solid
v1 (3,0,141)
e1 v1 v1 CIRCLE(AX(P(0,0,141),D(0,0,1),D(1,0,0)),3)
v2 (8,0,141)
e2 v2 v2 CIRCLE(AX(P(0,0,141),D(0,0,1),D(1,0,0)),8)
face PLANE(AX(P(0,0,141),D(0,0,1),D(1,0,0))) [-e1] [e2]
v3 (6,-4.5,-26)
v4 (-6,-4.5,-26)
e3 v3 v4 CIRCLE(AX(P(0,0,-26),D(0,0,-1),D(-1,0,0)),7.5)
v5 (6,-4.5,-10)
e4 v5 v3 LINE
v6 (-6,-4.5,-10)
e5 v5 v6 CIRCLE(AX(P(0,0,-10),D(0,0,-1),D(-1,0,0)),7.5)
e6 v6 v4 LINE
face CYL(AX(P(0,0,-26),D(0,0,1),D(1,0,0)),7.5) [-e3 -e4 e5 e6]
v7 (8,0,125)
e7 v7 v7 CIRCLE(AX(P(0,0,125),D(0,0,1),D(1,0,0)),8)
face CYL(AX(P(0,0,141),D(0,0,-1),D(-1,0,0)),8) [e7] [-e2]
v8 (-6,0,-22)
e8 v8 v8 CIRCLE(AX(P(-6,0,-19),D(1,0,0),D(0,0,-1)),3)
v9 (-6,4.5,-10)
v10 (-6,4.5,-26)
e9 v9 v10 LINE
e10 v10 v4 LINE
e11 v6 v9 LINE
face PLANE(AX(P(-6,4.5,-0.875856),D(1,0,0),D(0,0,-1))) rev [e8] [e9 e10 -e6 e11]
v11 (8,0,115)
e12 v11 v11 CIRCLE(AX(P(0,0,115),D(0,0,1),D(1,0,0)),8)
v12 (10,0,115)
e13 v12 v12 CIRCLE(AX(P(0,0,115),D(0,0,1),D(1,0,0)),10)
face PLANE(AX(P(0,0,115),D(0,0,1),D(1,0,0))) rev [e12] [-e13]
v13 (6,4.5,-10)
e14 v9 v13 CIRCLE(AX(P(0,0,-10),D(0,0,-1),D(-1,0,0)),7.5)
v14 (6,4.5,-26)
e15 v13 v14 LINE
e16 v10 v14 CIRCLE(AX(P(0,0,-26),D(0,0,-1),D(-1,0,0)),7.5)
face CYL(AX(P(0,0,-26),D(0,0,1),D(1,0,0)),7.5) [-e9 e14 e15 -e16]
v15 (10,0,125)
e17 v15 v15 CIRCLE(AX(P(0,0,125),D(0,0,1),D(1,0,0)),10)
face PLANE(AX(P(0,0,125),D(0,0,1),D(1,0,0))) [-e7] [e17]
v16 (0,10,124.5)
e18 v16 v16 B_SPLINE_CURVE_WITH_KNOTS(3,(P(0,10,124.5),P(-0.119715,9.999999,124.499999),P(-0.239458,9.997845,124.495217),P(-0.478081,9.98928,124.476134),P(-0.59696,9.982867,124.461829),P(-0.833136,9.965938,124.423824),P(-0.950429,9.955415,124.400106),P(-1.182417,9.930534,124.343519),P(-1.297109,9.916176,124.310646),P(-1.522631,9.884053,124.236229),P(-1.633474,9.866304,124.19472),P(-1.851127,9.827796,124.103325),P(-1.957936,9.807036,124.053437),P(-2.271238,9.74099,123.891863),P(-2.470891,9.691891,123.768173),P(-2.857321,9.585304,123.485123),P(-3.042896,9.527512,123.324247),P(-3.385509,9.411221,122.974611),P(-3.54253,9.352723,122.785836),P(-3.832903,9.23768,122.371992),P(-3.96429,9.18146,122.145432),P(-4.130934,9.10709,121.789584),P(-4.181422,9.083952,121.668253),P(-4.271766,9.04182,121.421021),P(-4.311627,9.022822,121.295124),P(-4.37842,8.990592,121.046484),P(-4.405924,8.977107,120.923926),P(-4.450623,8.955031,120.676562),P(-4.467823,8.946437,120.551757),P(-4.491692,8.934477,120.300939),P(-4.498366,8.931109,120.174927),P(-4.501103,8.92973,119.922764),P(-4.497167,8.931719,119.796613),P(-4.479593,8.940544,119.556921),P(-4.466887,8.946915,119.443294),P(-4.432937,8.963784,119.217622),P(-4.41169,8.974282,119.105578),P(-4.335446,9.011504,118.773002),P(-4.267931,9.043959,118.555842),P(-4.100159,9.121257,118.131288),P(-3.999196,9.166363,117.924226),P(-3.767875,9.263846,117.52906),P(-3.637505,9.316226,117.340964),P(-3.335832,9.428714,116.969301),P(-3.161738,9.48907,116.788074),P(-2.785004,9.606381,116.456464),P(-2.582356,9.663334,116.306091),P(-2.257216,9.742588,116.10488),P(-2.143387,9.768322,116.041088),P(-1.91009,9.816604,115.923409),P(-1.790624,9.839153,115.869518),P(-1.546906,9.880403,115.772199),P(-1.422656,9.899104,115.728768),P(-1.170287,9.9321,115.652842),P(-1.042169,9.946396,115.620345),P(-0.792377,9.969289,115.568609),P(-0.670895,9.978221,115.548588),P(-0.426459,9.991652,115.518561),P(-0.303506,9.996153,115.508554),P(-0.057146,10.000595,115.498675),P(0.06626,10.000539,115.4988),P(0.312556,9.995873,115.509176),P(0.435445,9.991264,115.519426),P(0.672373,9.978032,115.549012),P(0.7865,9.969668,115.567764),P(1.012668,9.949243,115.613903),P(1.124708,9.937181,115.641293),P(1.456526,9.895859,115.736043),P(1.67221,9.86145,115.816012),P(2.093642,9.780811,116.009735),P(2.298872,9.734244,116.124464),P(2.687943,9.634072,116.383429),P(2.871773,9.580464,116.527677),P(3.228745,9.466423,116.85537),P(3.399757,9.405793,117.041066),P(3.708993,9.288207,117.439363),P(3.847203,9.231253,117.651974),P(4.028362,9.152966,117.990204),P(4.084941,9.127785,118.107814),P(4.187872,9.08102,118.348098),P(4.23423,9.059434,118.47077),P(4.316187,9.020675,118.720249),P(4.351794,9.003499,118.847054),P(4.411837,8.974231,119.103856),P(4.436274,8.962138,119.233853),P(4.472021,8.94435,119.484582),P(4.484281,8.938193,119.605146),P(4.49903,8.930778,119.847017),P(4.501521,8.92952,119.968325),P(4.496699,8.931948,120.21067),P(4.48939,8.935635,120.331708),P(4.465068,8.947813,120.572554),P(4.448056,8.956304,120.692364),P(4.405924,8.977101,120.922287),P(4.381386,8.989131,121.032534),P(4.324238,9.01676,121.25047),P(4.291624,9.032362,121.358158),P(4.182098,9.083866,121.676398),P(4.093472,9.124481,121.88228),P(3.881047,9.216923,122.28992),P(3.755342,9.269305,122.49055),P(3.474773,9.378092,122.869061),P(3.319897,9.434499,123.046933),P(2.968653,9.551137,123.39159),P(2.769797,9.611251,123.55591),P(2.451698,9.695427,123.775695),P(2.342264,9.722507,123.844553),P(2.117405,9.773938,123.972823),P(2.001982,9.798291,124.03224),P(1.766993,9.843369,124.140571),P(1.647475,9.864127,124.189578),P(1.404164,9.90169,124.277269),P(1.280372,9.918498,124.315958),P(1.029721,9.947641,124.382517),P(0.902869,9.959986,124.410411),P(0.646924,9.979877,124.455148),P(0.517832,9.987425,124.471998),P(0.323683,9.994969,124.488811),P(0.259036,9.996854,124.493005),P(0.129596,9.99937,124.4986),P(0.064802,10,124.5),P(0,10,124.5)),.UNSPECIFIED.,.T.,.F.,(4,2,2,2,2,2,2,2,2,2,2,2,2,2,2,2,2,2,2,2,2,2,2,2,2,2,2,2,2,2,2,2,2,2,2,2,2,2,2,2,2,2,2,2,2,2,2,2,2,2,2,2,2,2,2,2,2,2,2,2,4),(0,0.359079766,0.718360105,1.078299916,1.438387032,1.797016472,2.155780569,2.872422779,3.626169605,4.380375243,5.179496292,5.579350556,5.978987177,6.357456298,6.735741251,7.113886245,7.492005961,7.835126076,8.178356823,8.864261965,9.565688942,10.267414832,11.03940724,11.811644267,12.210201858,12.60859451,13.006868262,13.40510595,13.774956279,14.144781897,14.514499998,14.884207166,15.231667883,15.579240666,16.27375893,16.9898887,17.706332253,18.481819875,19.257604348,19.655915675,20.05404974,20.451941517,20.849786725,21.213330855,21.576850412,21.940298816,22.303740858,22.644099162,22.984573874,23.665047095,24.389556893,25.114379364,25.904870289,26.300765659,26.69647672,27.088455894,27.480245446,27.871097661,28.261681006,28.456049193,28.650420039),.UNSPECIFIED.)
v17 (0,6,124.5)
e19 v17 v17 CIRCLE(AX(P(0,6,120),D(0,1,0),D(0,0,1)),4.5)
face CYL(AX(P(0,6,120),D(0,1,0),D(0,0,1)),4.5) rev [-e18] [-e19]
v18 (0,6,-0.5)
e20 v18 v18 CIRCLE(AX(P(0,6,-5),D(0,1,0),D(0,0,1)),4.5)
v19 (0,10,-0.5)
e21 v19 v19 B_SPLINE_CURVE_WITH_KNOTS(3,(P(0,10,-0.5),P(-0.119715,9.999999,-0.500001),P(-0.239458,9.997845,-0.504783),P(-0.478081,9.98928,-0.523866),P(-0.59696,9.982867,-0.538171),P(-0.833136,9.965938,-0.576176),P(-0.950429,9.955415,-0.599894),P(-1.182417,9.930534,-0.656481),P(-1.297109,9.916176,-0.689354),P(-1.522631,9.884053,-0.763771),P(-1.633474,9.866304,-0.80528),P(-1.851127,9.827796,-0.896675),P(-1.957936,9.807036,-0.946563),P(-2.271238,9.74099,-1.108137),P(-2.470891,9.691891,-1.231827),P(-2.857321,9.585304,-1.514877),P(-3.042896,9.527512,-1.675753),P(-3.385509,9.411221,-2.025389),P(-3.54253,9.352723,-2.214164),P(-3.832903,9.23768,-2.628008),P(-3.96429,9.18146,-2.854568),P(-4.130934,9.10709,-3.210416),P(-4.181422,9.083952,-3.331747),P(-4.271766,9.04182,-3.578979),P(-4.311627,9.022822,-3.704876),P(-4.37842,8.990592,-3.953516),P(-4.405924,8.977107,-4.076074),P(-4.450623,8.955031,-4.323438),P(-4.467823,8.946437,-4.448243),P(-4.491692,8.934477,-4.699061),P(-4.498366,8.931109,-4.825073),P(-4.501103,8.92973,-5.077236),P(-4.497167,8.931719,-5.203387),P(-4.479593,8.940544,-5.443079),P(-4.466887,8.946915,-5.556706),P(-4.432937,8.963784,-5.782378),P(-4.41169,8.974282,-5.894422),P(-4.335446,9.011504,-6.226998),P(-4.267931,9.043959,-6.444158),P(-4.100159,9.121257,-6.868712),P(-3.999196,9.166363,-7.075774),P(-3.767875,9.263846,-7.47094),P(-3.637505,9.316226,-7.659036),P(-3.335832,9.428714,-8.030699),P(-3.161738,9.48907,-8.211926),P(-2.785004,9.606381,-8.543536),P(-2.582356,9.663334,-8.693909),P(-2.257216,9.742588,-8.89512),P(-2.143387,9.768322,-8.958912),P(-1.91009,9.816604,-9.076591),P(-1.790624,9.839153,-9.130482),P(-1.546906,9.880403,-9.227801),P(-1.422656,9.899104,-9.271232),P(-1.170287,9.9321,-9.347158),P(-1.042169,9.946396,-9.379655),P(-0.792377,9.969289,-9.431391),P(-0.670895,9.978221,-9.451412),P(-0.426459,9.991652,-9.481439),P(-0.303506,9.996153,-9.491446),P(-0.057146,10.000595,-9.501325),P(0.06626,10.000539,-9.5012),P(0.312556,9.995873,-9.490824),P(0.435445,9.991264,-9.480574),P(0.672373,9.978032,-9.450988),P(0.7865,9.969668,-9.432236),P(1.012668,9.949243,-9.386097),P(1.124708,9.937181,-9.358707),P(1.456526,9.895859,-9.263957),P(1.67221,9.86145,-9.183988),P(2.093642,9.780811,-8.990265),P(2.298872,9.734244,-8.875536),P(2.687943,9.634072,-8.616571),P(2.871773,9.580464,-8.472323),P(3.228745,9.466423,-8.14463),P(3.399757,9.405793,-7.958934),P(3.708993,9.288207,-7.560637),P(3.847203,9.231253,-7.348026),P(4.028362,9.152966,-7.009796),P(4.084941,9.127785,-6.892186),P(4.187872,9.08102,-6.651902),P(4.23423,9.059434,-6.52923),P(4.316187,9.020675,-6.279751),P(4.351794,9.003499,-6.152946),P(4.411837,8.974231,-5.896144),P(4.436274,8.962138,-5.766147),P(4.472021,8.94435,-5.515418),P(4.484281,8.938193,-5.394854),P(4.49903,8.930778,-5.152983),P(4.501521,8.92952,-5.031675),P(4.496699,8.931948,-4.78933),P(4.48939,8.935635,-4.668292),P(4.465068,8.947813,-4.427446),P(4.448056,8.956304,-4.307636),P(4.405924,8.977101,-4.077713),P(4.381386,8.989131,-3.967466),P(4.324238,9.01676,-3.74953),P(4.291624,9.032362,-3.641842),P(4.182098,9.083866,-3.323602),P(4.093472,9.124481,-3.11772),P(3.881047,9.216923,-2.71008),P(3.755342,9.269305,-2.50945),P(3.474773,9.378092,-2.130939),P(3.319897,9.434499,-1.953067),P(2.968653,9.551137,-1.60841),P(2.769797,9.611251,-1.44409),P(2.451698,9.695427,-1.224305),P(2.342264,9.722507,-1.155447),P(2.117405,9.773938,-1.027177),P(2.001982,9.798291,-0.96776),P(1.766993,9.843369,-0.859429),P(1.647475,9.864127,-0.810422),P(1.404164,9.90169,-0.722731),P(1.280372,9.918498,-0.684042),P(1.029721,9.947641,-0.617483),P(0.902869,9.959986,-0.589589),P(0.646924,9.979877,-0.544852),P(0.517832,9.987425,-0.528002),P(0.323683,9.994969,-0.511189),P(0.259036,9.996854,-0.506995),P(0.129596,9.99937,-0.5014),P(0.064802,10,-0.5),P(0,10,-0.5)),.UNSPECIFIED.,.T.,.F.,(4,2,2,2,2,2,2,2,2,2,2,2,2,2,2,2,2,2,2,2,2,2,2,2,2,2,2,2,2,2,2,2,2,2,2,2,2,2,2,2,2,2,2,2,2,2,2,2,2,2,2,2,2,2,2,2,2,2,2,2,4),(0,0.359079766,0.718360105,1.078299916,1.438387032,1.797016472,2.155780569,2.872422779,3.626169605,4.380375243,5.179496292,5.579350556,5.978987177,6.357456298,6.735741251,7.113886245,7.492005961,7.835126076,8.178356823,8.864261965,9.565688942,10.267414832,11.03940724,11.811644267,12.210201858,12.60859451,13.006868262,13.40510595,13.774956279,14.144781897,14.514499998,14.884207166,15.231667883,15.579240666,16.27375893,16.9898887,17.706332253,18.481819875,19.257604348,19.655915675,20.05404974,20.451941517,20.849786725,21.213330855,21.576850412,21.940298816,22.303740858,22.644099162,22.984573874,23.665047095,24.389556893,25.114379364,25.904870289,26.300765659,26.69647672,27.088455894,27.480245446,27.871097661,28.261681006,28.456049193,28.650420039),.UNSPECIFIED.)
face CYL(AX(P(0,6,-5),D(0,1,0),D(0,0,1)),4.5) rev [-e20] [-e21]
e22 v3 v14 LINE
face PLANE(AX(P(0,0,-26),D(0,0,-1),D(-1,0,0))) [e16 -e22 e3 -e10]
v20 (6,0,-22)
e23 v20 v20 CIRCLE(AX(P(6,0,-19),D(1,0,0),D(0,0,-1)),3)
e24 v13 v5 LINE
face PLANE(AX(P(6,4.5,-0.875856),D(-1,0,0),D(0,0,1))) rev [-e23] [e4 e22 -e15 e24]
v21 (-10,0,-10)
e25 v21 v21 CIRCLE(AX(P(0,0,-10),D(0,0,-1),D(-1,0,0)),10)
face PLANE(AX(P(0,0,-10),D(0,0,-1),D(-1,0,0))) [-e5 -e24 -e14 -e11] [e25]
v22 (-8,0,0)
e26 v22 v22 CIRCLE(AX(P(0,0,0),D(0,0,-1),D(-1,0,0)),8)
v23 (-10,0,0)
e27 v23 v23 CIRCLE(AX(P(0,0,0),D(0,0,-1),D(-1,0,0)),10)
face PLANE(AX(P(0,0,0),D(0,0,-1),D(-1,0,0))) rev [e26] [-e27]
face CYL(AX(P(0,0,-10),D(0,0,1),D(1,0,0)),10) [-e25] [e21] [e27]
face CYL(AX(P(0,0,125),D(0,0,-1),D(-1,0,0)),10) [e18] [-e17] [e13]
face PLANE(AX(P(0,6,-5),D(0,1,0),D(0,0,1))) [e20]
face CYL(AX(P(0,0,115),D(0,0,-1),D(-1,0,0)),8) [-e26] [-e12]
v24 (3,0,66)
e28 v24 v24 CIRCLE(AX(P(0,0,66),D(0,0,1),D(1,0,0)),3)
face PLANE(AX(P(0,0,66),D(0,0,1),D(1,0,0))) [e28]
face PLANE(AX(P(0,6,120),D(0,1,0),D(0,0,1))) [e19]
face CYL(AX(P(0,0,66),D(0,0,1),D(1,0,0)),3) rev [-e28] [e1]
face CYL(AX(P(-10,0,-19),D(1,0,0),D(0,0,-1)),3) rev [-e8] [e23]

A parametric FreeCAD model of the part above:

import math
import FreeCAD as App
import Part
import Sketcher

V = App.Vector

doc = App.newDocument("Part")
body = doc.addObject("PartDesign::Body", "Body")

# Sketch on XY plane
sketch1 = body.newObject("Sketcher::SketchObject", "Sketch")
sketch1.AttachmentSupport = (doc.getObject("XY_Plane"), [""])
sketch1.MapMode = "FlatFace"
sketch1.addGeometry(Part.Circle(V(0, 0, 0), V(0, 0, 1), 8), False)
sketch1.addConstraint(Sketcher.Constraint("Coincident", 0, 3, -1, 1))
sketch1.addConstraint(Sketcher.Constraint("Diameter", 0, 16.0))
pad1 = body.newObject("PartDesign::Pad", "Pad")
pad1.Profile = sketch1
pad1.Length = 115

# Sketch on XY plane
sketch2 = body.newObject("Sketcher::SketchObject", "Sketch001")
sketch2.AttachmentSupport = (doc.getObject("XY_Plane"), [""])
sketch2.MapMode = "FlatFace"
sketch2.addGeometry(Part.Circle(V(0, 0, 0), V(0, 0, 1), 10), False)
sketch2.addConstraint(Sketcher.Constraint("Coincident", 0, 3, -1, 1))
sketch2.addConstraint(Sketcher.Constraint("Diameter", 0, 20.0))
pad2 = body.newObject("PartDesign::Pad", "Pad001")
pad2.Profile = sketch2
pad2.Length = 10
pad2.Reversed = True

# Sketch on XY plane
sketch3 = body.newObject("Sketcher::SketchObject", "Sketch002")
sketch3.AttachmentSupport = (doc.getObject("XY_Plane"), [""])
sketch3.MapMode = "FlatFace"
sketch3.AttachmentOffset = App.Placement(V(0, 0, 125), App.Rotation())
sketch3.addGeometry(Part.Circle(V(0, 0, 0), V(0, 0, 1), 10), False)
sketch3.addConstraint(Sketcher.Constraint("Coincident", 0, 3, -1, 1))
sketch3.addConstraint(Sketcher.Constraint("Diameter", 0, 20.0))
pad3 = body.newObject("PartDesign::Pad", "Pad002")
pad3.Profile = sketch3
pad3.Length = 10
pad3.Reversed = True

# Sketch on XY plane
sketch4 = body.newObject("Sketcher::SketchObject", "Sketch003")
sketch4.AttachmentSupport = (doc.getObject("XY_Plane"), [""])
sketch4.MapMode = "FlatFace"
sketch4.AttachmentOffset = App.Placement(V(0, 0, 125), App.Rotation())
sketch4.addGeometry(Part.Circle(V(0, 0, 0), V(0, 0, 1), 8), False)
sketch4.addConstraint(Sketcher.Constraint("Coincident", 0, 3, -1, 1))
sketch4.addConstraint(Sketcher.Constraint("Diameter", 0, 16.0))
pad4 = body.newObject("PartDesign::Pad", "Pad003")
pad4.Profile = sketch4
pad4.Length = 16

# Sketch on XY plane
sketch5 = body.newObject("Sketcher::SketchObject", "Sketch004")
sketch5.AttachmentSupport = (doc.getObject("XY_Plane"), [""])
sketch5.MapMode = "FlatFace"
sketch5.AttachmentOffset = App.Placement(V(0, 0, -10), App.Rotation())
sketch5.addGeometry(Part.Circle(V(0, 0, 0), V(0, 0, 1), 7.5), False)
sketch5.addConstraint(Sketcher.Constraint("Coincident", 0, 3, -1, 1))
sketch5.addConstraint(Sketcher.Constraint("Diameter", 0, 15.0))
pad5 = body.newObject("PartDesign::Pad", "Pad004")
pad5.Profile = sketch5
pad5.Length = 16
pad5.Reversed = True

# Sketch on XY plane
sketch6 = body.newObject("Sketcher::SketchObject", "Sketch005")
sketch6.AttachmentSupport = (doc.getObject("XY_Plane"), [""])
sketch6.MapMode = "FlatFace"
sketch6.AttachmentOffset = App.Placement(V(0, 0, 141), App.Rotation())
sketch6.addGeometry(Part.Circle(V(0, 0, 0), V(0, 0, 1), 3), False)
sketch6.addConstraint(Sketcher.Constraint("Coincident", 0, 3, -1, 1))
sketch6.addConstraint(Sketcher.Constraint("Diameter", 0, 6.0))
pocket1 = body.newObject("PartDesign::Pocket", "Pocket")
pocket1.Profile = sketch6
pocket1.Length = 75

# Sketch on XZ plane
sketch7 = body.newObject("Sketcher::SketchObject", "Sketch006")
sketch7.AttachmentSupport = (doc.getObject("XZ_Plane"), [""])
sketch7.MapMode = "FlatFace"
sketch7.AttachmentOffset = App.Placement(V(0, 0, -10), App.Rotation())
sketch7.addGeometry(Part.Circle(V(0, 120, 0), V(0, 0, 1), 4.5), False)
sketch7.addGeometry(Part.Circle(V(0, -5, 0), V(0, 0, 1), 4.5), False)
sketch7.addConstraint(Sketcher.Constraint("Equal", 0, 1))
sketch7.addConstraint(Sketcher.Constraint("PointOnObject", 0, 3, -2))
sketch7.addConstraint(Sketcher.Constraint("PointOnObject", 1, 3, -2))
sketch7.addConstraint(Sketcher.Constraint("Diameter", 0, 9.0))
sketch7.addConstraint(Sketcher.Constraint("DistanceY", -1, 1, 0, 3, 120.0))
sketch7.addConstraint(Sketcher.Constraint("DistanceY", 1, 3, -1, 1, 5.0))
pocket2 = body.newObject("PartDesign::Pocket", "Pocket001")
pocket2.Profile = sketch7
pocket2.Length = 4
pocket2.Reversed = True

# Sketch on XY plane
sketch8 = body.newObject("Sketcher::SketchObject", "Sketch007")
sketch8.AttachmentSupport = (doc.getObject("XY_Plane"), [""])
sketch8.MapMode = "FlatFace"
sketch8.AttachmentOffset = App.Placement(V(0, 0, -10), App.Rotation())
sketch8.addGeometry(Part.LineSegment(V(6, -4.5, 0), V(6, 4.5, 0)), False)
sketch8.addGeometry(Part.ArcOfCircle(Part.Circle(V(0, 0, 0), V(0, 0, 1), 7.5), math.radians(-36.869898), math.radians(36.869898)), False)
sketch8.addGeometry(Part.LineSegment(V(-6, 4.5, 0), V(-6, -4.5, 0)), False)
sketch8.addGeometry(Part.ArcOfCircle(Part.Circle(V(0, 0, 0), V(0, 0, 1), 7.5), math.radians(143.130102), math.radians(216.869898)), False)
sketch8.addConstraint(Sketcher.Constraint("Coincident", 0, 1, 1, 1))
sketch8.addConstraint(Sketcher.Constraint("Coincident", 1, 2, 0, 2))
sketch8.addConstraint(Sketcher.Constraint("Coincident", 2, 1, 3, 1))
sketch8.addConstraint(Sketcher.Constraint("Coincident", 3, 2, 2, 2))
sketch8.addConstraint(Sketcher.Constraint("Vertical", 0))
sketch8.addConstraint(Sketcher.Constraint("Vertical", 2))
sketch8.addConstraint(Sketcher.Constraint("Coincident", 1, 3, -1, 1))
sketch8.addConstraint(Sketcher.Constraint("Coincident", 3, 3, -1, 1))
sketch8.addConstraint(Sketcher.Constraint("Equal", 1, 3))
sketch8.addConstraint(Sketcher.Constraint("Horizontal", 1, 2, 2, 1))
sketch8.addConstraint(Sketcher.Constraint("Radius", 1, 7.5))
sketch8.addConstraint(Sketcher.Constraint("DistanceY", 0, 1, 0, 2, 9.0))
pocket3 = body.newObject("PartDesign::Pocket", "Pocket002")
pocket3.Profile = sketch8
pocket3.Length = 16

# Sketch on YZ plane
sketch9 = body.newObject("Sketcher::SketchObject", "Sketch008")
sketch9.AttachmentSupport = (doc.getObject("YZ_Plane"), [""])
sketch9.MapMode = "FlatFace"
sketch9.AttachmentOffset = App.Placement(V(0, 0, 6), App.Rotation())
sketch9.addGeometry(Part.Circle(V(0, -19, 0), V(0, 0, 1), 3), False)
sketch9.addConstraint(Sketcher.Constraint("PointOnObject", 0, 3, -2))
sketch9.addConstraint(Sketcher.Constraint("Diameter", 0, 6.0))
sketch9.addConstraint(Sketcher.Constraint("DistanceY", 0, 3, -1, 1, 19.0))
pocket4 = body.newObject("PartDesign::Pocket", "Pocket003")
pocket4.Profile = sketch9
pocket4.Type = "ThroughAll"

doc.recompute()
